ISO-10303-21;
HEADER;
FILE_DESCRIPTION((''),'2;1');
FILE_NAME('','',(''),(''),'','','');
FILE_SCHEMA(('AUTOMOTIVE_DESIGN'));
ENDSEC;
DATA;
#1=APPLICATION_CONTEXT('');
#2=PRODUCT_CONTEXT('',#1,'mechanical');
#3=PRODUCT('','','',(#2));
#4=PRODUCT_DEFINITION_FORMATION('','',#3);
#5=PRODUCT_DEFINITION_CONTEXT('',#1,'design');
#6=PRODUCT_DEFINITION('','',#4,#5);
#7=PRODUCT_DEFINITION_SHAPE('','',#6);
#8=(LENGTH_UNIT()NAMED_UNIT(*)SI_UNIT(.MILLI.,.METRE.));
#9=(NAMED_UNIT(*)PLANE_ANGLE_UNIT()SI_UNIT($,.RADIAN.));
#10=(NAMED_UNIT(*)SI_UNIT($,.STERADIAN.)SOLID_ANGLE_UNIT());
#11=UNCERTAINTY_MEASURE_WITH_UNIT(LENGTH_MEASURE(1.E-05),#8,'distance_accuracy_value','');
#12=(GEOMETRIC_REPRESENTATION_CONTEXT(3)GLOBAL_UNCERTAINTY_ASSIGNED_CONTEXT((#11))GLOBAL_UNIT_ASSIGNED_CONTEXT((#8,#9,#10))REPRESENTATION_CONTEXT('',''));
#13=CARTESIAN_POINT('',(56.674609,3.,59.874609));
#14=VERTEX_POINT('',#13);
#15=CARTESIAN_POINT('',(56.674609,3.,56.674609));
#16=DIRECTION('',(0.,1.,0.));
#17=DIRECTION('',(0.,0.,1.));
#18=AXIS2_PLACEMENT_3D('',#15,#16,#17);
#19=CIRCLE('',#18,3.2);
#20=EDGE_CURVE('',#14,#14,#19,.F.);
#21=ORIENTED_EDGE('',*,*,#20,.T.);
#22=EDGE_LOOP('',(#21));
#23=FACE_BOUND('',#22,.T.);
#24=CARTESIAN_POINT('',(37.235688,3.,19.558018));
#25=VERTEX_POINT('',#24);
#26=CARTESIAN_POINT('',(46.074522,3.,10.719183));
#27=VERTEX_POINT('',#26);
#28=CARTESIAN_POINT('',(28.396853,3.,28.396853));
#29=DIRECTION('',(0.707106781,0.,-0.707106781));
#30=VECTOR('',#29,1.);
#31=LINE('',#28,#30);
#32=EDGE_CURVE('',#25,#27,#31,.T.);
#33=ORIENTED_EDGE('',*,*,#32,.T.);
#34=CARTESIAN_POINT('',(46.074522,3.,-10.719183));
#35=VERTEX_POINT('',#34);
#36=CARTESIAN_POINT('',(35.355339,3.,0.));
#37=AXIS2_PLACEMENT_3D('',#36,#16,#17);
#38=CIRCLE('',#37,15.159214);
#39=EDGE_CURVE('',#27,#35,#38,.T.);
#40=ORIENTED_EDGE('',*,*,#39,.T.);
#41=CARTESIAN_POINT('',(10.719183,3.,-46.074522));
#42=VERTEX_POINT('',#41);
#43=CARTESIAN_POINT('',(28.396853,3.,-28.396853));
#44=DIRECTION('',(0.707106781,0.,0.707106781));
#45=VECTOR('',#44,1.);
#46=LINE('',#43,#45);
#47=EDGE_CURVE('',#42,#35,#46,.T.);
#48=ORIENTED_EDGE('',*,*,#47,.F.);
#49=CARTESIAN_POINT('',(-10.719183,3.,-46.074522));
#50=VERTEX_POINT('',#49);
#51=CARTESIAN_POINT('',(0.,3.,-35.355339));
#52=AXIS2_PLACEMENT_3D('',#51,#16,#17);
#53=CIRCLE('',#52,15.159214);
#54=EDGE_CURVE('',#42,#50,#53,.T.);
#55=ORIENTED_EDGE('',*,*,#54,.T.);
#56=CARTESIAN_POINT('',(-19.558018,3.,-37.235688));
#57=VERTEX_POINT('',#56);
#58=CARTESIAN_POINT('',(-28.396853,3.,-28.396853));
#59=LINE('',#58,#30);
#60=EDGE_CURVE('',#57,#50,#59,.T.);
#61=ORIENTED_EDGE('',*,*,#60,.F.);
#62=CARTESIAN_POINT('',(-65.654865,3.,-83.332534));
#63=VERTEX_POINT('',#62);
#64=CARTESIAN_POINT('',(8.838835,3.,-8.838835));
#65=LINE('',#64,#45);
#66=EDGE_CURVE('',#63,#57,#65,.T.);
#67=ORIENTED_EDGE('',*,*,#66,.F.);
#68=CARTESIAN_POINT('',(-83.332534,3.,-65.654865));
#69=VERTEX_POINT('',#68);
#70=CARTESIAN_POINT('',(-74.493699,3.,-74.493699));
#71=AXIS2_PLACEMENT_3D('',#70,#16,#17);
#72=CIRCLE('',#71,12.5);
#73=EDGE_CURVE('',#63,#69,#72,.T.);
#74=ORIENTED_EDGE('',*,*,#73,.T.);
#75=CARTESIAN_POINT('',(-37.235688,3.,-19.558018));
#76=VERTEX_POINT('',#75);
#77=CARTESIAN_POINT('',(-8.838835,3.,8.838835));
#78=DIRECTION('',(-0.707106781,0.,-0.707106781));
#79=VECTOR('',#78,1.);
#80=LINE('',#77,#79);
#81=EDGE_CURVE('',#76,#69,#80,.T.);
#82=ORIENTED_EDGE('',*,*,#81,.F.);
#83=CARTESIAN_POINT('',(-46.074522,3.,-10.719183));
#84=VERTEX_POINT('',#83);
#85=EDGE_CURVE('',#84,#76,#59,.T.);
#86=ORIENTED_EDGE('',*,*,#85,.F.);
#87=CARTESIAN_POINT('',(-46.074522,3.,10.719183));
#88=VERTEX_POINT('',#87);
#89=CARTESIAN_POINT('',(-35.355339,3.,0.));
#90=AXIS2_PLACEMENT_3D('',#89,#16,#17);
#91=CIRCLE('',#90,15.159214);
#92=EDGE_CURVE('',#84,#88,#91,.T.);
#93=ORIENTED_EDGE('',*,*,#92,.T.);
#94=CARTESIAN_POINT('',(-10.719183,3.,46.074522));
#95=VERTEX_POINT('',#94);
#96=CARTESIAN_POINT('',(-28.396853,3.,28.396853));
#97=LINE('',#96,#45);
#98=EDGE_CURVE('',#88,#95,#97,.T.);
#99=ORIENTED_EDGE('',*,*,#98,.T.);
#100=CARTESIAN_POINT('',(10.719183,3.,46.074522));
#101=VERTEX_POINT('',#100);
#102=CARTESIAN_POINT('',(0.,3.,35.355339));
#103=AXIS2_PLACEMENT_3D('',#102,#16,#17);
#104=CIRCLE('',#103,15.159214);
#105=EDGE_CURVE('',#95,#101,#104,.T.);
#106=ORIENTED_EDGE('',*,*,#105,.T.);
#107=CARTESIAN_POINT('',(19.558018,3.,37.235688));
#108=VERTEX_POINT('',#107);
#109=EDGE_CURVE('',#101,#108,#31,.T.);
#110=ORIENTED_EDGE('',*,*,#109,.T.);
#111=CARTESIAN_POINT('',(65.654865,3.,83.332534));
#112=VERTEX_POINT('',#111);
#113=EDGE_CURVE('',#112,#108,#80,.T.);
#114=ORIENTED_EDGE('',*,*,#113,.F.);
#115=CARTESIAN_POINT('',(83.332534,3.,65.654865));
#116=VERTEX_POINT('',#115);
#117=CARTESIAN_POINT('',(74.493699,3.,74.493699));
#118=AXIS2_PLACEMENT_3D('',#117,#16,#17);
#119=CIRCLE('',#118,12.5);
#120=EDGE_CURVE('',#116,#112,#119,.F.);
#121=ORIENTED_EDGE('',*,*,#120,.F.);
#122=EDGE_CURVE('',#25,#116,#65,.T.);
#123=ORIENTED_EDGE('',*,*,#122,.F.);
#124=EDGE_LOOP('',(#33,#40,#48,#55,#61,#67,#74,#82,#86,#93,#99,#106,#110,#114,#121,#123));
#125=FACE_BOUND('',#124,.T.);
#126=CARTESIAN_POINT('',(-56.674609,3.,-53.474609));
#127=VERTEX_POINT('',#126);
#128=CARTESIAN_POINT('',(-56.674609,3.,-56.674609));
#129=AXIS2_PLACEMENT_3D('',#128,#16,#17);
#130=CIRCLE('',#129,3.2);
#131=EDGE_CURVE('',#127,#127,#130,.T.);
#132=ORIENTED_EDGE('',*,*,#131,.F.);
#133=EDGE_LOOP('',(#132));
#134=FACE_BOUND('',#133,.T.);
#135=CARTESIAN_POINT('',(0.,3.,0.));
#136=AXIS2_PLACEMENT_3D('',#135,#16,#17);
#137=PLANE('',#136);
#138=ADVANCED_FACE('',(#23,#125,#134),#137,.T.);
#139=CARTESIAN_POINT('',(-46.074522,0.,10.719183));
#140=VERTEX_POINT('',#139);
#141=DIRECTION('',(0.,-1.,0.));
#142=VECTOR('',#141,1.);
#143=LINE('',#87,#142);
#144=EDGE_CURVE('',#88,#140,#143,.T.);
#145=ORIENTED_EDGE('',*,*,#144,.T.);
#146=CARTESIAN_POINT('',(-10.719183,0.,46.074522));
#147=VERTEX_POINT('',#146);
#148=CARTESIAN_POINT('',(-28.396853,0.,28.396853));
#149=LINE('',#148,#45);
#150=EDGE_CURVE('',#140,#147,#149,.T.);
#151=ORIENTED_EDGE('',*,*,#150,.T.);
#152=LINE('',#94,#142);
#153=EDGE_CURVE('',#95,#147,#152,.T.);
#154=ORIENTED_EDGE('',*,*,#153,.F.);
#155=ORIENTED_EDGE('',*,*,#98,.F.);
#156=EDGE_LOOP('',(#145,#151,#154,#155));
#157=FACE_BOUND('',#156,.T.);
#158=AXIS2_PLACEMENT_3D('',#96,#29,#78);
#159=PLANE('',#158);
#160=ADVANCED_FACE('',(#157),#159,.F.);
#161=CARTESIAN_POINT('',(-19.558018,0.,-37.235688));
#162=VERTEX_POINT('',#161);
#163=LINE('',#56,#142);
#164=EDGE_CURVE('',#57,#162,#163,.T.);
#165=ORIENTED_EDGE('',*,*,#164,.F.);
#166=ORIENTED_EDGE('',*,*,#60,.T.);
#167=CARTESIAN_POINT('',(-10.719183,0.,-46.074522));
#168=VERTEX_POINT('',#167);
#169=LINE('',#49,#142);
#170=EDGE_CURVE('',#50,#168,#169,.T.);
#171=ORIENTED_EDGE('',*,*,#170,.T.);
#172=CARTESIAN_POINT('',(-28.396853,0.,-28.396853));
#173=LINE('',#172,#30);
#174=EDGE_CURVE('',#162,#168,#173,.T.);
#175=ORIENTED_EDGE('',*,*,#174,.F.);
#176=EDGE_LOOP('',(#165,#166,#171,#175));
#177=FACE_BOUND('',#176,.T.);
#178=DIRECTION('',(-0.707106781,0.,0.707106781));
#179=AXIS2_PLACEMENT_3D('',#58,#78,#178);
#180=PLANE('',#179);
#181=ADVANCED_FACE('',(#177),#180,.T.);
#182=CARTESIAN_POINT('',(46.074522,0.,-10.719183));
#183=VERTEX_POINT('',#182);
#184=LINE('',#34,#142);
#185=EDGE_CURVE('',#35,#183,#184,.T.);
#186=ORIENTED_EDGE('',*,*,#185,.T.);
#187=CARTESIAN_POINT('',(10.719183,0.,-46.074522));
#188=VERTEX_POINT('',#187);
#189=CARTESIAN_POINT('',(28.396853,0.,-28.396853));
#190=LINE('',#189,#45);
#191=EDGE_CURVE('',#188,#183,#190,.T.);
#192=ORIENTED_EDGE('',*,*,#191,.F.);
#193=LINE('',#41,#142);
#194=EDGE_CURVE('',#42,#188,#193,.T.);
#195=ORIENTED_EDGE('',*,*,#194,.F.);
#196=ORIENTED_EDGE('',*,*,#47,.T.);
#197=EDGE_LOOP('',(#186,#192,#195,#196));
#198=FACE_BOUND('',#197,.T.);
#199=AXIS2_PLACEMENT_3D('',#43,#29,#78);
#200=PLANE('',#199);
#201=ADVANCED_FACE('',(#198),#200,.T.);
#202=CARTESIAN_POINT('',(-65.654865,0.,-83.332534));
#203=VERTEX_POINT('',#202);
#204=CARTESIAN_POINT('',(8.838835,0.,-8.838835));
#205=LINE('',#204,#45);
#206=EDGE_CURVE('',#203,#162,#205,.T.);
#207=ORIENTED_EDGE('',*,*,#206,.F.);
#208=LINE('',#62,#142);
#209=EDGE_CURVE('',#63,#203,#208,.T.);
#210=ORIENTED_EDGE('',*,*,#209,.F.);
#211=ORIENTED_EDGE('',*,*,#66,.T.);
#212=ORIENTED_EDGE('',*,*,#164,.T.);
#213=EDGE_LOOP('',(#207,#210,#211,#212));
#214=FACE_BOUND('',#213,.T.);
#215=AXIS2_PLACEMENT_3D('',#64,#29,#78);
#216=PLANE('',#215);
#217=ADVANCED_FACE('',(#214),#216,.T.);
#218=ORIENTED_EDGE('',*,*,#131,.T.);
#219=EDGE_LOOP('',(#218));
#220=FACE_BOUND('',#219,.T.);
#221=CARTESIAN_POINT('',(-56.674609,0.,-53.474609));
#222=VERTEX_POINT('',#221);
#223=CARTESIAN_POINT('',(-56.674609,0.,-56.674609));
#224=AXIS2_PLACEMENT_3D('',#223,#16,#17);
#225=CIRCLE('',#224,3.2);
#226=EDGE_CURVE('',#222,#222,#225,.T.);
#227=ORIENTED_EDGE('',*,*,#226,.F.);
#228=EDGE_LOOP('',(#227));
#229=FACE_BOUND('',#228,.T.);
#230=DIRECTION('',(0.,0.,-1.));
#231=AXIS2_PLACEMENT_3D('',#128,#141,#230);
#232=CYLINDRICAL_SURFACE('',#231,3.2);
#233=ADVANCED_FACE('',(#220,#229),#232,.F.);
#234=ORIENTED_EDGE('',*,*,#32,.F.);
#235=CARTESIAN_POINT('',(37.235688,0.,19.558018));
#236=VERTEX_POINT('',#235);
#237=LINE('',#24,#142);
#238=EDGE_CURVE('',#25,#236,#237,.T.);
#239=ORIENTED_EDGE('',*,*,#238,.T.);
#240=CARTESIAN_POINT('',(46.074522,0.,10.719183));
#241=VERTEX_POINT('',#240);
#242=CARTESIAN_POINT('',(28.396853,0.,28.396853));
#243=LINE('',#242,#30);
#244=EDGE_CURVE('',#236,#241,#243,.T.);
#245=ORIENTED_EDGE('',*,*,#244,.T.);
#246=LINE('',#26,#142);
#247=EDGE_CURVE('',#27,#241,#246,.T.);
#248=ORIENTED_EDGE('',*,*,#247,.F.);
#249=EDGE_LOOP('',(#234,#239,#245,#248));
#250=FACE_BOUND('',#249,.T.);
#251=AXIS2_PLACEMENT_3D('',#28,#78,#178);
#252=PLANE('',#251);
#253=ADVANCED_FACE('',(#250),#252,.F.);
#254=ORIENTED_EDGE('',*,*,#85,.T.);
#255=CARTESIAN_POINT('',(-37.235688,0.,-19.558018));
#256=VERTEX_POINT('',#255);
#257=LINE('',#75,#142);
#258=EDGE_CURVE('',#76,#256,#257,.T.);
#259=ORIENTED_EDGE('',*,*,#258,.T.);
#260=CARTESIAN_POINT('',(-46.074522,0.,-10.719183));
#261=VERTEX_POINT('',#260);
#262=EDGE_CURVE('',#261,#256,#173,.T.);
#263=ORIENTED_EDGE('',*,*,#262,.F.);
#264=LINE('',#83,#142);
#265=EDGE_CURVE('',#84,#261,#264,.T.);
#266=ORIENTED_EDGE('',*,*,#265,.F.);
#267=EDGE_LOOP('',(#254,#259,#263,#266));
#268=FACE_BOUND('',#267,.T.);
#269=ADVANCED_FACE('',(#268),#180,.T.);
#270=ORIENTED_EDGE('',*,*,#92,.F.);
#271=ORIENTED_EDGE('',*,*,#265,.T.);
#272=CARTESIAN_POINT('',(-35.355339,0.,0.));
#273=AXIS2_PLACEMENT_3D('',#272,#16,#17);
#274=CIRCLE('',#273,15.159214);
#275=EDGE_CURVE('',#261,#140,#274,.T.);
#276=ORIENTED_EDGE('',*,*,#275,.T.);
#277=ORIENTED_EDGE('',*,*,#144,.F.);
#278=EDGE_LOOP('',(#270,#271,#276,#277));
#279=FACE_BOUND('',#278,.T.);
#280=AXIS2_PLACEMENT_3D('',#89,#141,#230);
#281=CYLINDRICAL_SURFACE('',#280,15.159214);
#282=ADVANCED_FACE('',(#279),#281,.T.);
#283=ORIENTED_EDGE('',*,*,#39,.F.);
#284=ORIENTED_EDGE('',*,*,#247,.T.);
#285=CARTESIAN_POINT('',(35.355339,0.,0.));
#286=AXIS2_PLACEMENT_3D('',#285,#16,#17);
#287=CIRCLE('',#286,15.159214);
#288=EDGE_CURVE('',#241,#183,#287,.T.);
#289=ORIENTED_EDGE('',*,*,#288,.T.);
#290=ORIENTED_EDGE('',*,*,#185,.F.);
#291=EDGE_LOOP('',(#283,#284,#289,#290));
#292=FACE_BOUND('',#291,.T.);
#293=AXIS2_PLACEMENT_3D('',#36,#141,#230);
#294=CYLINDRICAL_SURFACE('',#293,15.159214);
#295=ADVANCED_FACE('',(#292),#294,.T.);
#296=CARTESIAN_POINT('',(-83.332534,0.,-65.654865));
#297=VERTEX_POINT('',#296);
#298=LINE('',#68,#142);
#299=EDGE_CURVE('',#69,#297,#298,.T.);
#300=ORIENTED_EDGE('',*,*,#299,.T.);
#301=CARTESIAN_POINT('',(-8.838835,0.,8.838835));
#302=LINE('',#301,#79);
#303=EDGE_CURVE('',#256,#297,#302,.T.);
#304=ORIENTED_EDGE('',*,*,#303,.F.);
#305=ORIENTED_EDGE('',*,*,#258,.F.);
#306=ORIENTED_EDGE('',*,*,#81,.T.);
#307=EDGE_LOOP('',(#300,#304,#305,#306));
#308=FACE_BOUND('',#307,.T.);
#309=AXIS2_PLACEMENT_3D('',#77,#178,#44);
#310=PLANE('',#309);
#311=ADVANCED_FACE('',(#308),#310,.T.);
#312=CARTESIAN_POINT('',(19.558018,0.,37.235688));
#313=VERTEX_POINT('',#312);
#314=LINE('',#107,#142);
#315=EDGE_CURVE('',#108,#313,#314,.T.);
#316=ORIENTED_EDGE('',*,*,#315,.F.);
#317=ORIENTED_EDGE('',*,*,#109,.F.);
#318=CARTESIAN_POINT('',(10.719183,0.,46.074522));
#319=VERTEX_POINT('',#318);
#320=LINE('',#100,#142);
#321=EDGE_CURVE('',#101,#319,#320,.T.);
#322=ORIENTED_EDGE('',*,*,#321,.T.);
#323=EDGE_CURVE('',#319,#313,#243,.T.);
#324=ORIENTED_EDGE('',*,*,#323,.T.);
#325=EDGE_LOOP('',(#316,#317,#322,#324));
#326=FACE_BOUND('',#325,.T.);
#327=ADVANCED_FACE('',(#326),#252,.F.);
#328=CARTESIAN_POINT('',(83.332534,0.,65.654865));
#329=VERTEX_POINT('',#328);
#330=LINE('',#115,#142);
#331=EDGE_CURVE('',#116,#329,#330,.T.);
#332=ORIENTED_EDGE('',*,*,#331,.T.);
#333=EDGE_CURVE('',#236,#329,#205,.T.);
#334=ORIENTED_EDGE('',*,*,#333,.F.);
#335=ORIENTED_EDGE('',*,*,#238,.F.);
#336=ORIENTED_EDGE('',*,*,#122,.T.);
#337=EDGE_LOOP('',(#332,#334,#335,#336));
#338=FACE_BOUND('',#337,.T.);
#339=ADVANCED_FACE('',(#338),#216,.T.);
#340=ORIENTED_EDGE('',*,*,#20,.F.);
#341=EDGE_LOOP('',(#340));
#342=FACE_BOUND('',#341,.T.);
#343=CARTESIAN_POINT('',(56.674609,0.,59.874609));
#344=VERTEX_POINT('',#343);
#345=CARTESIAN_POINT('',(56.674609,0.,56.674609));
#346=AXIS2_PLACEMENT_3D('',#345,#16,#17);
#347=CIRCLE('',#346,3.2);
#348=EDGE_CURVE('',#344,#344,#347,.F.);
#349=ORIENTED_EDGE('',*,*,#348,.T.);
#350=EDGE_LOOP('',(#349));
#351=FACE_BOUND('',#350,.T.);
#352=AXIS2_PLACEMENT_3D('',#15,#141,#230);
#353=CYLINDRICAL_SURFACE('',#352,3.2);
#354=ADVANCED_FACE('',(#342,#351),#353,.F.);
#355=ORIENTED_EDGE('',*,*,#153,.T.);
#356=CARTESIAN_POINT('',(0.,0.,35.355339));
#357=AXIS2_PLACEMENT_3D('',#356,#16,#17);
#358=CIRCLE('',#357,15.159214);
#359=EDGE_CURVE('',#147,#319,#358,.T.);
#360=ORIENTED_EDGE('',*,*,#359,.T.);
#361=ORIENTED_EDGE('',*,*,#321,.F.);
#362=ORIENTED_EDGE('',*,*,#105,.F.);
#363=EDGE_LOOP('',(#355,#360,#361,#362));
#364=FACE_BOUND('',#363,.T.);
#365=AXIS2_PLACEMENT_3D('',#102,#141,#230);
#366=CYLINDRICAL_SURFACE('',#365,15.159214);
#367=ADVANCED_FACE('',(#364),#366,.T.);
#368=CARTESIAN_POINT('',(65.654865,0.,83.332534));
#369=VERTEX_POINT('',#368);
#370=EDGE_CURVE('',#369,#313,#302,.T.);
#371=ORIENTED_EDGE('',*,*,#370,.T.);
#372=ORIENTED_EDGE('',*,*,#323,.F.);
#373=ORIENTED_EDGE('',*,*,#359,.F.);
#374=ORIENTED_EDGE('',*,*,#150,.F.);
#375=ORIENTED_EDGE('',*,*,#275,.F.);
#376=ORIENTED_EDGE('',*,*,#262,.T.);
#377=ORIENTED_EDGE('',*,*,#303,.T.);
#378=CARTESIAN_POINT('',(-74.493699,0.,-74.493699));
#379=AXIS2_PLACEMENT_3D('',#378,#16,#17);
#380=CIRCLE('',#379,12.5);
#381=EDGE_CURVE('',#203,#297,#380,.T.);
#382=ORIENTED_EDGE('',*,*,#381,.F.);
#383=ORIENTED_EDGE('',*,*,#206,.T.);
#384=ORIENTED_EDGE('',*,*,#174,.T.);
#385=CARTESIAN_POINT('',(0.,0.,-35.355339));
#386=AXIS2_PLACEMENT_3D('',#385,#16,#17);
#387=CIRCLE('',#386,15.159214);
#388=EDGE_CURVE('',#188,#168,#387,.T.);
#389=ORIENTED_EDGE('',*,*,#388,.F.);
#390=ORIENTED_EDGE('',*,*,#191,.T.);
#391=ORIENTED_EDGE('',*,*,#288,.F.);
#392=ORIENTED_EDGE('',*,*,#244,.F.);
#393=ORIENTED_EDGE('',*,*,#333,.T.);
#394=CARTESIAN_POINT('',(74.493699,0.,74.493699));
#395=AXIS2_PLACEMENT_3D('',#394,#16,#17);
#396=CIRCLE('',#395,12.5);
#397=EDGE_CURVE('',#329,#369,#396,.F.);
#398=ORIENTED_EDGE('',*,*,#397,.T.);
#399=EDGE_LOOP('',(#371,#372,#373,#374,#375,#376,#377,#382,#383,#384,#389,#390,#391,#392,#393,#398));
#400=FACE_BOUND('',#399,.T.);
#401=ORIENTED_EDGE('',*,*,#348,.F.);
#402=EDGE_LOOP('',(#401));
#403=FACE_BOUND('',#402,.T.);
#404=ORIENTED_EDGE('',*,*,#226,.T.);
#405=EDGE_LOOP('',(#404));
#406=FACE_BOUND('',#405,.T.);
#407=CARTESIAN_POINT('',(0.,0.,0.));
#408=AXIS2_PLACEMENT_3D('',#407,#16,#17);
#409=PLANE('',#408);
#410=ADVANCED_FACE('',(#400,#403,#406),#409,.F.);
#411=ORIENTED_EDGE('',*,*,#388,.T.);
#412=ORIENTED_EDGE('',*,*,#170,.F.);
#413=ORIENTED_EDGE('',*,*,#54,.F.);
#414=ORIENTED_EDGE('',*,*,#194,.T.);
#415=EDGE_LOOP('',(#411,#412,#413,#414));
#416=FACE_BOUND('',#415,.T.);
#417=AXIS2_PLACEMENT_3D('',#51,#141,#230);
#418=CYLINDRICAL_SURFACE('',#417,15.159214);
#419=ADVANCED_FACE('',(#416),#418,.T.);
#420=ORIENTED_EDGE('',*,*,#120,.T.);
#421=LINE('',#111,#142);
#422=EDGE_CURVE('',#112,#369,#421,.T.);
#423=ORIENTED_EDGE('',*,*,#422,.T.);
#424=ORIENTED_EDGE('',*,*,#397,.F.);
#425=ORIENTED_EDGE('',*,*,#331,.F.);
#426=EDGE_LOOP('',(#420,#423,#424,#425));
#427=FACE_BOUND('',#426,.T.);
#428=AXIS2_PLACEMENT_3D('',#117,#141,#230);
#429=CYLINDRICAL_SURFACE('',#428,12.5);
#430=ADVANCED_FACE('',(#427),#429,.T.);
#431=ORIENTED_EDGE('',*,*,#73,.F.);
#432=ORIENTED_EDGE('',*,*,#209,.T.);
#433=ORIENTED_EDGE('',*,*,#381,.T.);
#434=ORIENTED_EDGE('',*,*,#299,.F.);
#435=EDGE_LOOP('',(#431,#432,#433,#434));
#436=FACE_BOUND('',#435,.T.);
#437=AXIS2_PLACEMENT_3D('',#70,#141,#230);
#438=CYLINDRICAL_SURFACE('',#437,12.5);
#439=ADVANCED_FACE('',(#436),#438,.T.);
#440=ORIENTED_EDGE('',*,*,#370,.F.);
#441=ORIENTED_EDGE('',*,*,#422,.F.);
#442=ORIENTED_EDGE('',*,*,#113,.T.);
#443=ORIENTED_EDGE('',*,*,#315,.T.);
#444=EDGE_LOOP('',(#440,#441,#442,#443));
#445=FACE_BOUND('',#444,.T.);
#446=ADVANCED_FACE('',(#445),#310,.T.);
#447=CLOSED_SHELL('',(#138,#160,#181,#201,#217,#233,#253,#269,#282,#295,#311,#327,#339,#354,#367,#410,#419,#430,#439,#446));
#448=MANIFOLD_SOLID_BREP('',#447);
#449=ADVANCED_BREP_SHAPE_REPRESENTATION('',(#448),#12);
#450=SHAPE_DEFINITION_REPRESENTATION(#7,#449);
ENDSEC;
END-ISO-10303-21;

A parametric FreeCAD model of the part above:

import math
import FreeCAD as App
import Part
import Sketcher
Q = App.Units.Quantity

doc = App.newDocument("Part")
body = doc.addObject("PartDesign::Body", "Body")

sketch1 = body.newObject("Sketcher::SketchObject", "Sketch")
sketch1.AttachmentSupport = (doc.getObject("XZ_Plane"), [""])
sketch1.MapMode = "FlatFace"
sketch1.addGeometry(Part.LineSegment(App.Vector(-37.2, -19.6, 0), App.Vector(-46.1, -10.7, 0)), False)
sketch1.addGeometry(Part.ArcOfCircle(Part.Circle(App.Vector(-35.4, 0, 0), App.Vector(0, 0, 1), 15.2), math.radians(135), math.radians(225)), False)
sketch1.addGeometry(Part.LineSegment(App.Vector(-46.1, 10.7, 0), App.Vector(-10.7, 46.1, 0)), False)
sketch1.addGeometry(Part.ArcOfCircle(Part.Circle(App.Vector(0, 35.4, 0), App.Vector(0, 0, 1), 15.2), math.radians(45), math.radians(135)), False)
sketch1.addGeometry(Part.LineSegment(App.Vector(10.7, 46.1, 0), App.Vector(19.6, 37.2, 0)), False)
sketch1.addGeometry(Part.LineSegment(App.Vector(19.6, 37.2, 0), App.Vector(65.7, 83.3, 0)), False)
sketch1.addGeometry(Part.ArcOfCircle(Part.Circle(App.Vector(74.5, 74.5, 0), App.Vector(0, 0, 1), 12.5), math.radians(-45), math.radians(135)), False)
sketch1.addGeometry(Part.LineSegment(App.Vector(83.3, 65.7, 0), App.Vector(37.2, 19.6, 0)), False)
sketch1.addGeometry(Part.LineSegment(App.Vector(37.2, 19.6, 0), App.Vector(46.1, 10.7, 0)), False)
sketch1.addGeometry(Part.ArcOfCircle(Part.Circle(App.Vector(35.4, 0, 0), App.Vector(0, 0, 1), 15.2), math.radians(-45), math.radians(45)), False)
sketch1.addGeometry(Part.LineSegment(App.Vector(46.1, -10.7, 0), App.Vector(10.7, -46.1, 0)), False)
sketch1.addGeometry(Part.ArcOfCircle(Part.Circle(App.Vector(0, -35.4, 0), App.Vector(0, 0, 1), 15.2), math.radians(-135), math.radians(-45)), False)
sketch1.addGeometry(Part.LineSegment(App.Vector(-10.7, -46.1, 0), App.Vector(-19.6, -37.2, 0)), False)
sketch1.addGeometry(Part.LineSegment(App.Vector(-19.6, -37.2, 0), App.Vector(-65.7, -83.3, 0)), False)
sketch1.addGeometry(Part.ArcOfCircle(Part.Circle(App.Vector(-74.5, -74.5, 0), App.Vector(0, 0, 1), 12.5), math.radians(135), math.radians(315)), False)
sketch1.addGeometry(Part.LineSegment(App.Vector(-83.3, -65.7, 0), App.Vector(-37.2, -19.6, 0)), False)
sketch1.addGeometry(Part.Circle(App.Vector(56.7, 56.7, 0), App.Vector(0, 0, 1), 3.2), False)
sketch1.addGeometry(Part.Circle(App.Vector(-56.7, -56.7, 0), App.Vector(0, 0, 1), 3.2), False)
sketch1.addConstraint(Sketcher.Constraint("Tangent", 0, 2, 1, 2))
sketch1.addConstraint(Sketcher.Constraint("Tangent", 1, 1, 2, 1))
sketch1.addConstraint(Sketcher.Constraint("Tangent", 2, 2, 3, 2))
sketch1.addConstraint(Sketcher.Constraint("Tangent", 3, 1, 4, 1))
sketch1.addConstraint(Sketcher.Constraint("Coincident", 4, 2, 5, 1))
sketch1.addConstraint(Sketcher.Constraint("Tangent", 5, 2, 6, 2))
sketch1.addConstraint(Sketcher.Constraint("Tangent", 6, 1, 7, 1))
sketch1.addConstraint(Sketcher.Constraint("Coincident", 7, 2, 8, 1))
sketch1.addConstraint(Sketcher.Constraint("Tangent", 8, 2, 9, 2))
sketch1.addConstraint(Sketcher.Constraint("Tangent", 9, 1, 10, 1))
sketch1.addConstraint(Sketcher.Constraint("Tangent", 10, 2, 11, 2))
sketch1.addConstraint(Sketcher.Constraint("Tangent", 11, 1, 12, 1))
sketch1.addConstraint(Sketcher.Constraint("Coincident", 12, 2, 13, 1))
sketch1.addConstraint(Sketcher.Constraint("Tangent", 13, 2, 14, 2))
sketch1.addConstraint(Sketcher.Constraint("Tangent", 14, 1, 15, 1))
sketch1.addConstraint(Sketcher.Constraint("Coincident", 15, 2, 0, 1))
sketch1.addConstraint(Sketcher.Constraint("Equal", 1, 3))
sketch1.addConstraint(Sketcher.Constraint("Equal", 3, 9))
sketch1.addConstraint(Sketcher.Constraint("Equal", 9, 11))
sketch1.addConstraint(Sketcher.Constraint("Equal", 6, 14))
sketch1.addConstraint(Sketcher.Constraint("Equal", 16, 17))
sketch1.addConstraint(Sketcher.Constraint("Symmetric", 1, 3, 9, 3, -1, 1))
sketch1.addConstraint(Sketcher.Constraint("Symmetric", 3, 3, 11, 3, -1, 1))
sketch1.addConstraint(Sketcher.Constraint("Symmetric", 6, 3, 14, 3, -1, 1))
sketch1.addConstraint(Sketcher.Constraint("Symmetric", 16, 3, 17, 3, -1, 1))
sketch1.addConstraint(Sketcher.Constraint("Symmetric", 4, 2, 12, 2, -1, 1))
sketch1.addConstraint(Sketcher.Constraint("Symmetric", 7, 2, 15, 2, -1, 1))
sketch1.addConstraint(Sketcher.Constraint("Symmetric", 2, 2, 3, 1, -2))
sketch1.addConstraint(Sketcher.Constraint("Symmetric", 1, 1, 8, 2, -2))
sketch1.addConstraint(Sketcher.Constraint("Perpendicular", 0, 2))
sketch1.addConstraint(Sketcher.Constraint("Perpendicular", 4, 5))
sketch1.addConstraint(Sketcher.Constraint("Parallel", 5, 7))
sketch1.addConstraint(Sketcher.Constraint("Equal", 0, 4))
sketch1.addConstraint(Sketcher.Constraint("Diameter", 16, Q("6.4 mm")))
sketch1.addConstraint(Sketcher.Constraint("Radius", 6, Q("12.5 mm")))
sketch1.addConstraint(Sketcher.Constraint("Distance", 2, Q("50 mm")))
sketch1.addConstraint(Sketcher.Constraint("Radius", 1, Q("15.159214 mm")))
sketch1.addConstraint(Sketcher.Constraint("DistanceX", -1, 1, 6, 3, Q("74.493699 mm")))
sketch1.addConstraint(Sketcher.Constraint("DistanceX", -1, 1, 16, 3, Q("56.674609 mm")))
sketch1.addConstraint(Sketcher.Constraint("DistanceY", -1, 1, 16, 3, Q("56.674609 mm")))
pad1 = body.newObject("PartDesign::Pad", "Pad")
pad1.Profile = sketch1
pad1.Length = 3
pad1.Reversed = True

doc.recompute()
